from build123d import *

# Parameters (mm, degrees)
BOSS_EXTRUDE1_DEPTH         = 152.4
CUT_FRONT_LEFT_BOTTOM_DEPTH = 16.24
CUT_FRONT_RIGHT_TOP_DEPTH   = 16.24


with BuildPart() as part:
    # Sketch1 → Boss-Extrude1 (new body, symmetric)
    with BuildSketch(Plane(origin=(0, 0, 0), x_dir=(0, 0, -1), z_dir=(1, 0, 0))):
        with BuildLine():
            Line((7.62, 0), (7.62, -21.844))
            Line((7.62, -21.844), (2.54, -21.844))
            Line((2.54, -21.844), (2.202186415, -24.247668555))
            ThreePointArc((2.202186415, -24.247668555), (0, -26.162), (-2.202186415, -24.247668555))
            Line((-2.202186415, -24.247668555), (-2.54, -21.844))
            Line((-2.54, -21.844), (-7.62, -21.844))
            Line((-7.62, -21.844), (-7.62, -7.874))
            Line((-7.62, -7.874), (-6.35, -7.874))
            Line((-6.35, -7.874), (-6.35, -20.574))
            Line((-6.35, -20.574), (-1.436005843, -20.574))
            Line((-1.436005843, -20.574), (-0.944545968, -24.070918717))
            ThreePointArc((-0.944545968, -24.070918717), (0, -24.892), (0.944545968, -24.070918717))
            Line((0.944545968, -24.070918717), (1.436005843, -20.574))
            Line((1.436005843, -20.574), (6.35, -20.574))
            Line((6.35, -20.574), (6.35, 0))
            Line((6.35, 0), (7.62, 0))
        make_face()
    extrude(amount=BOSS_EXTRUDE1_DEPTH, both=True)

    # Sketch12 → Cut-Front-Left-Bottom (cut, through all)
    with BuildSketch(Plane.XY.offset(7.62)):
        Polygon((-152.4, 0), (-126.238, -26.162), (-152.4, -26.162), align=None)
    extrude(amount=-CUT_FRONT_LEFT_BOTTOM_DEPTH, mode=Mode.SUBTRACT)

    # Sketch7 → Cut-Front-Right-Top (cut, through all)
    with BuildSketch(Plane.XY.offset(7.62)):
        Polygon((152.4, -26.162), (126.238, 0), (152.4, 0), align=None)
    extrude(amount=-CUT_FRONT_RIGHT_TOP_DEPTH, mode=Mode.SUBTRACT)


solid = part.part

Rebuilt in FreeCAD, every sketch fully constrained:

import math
import FreeCAD as App
import Part
import Sketcher

V = App.Vector
Q = App.Units.Quantity

doc = App.newDocument("Part")
params = doc.addObject("Spreadsheet::Sheet", "Params")
for row, (alias, value) in enumerate([
    ("sketch1_width", "0.5 in"),
    ("sketch1_height", "0.2 in"),
    ("sketch1_width2", "0.86 in"),
    ("sketch1_width3", "0.81 in"),
    ("sketch1_height2", "0.05 in"),
    ("pad1_length", "12 in"),
    ("sketch2_width", "1.03 in"),
    ("sketch3_width", "1.03 in"),
], start=1):
    params.set(f"A{row}", alias)
    params.set(f"B{row}", "=" + value)
    params.setAlias(f"B{row}", alias)

body = doc.addObject("PartDesign::Body", "Body")

# Sketch on YZ plane
sketch1 = body.newObject("Sketcher::SketchObject", "Sketch")
sketch1.AttachmentSupport = (doc.getObject("YZ_Plane"), [""])
sketch1.MapMode = "FlatFace"
sketch1.addGeometry([
    Part.LineSegment(V(-21.844, -7.62, 0), V(0, -7.62, 0)),  # 0
    Part.LineSegment(V(0, -7.62, 0), V(0, -6.35, 0)),  # 1
    Part.LineSegment(V(0, -6.35, 0), V(-20.574, -6.35, 0)),  # 2
    Part.LineSegment(V(-20.574, -6.35, 0), V(-20.574, -1.436006, 0)),  # 3
    Part.LineSegment(V(-20.574, -1.436006, 0), V(-24.070919, -0.944546, 0)),  # 4
    Part.ArcOfCircle(Part.Circle(V(-23.938171, 0, 0), V(0, 0, 1), 0.953829), math.radians(98), math.radians(262)),  # 5
    Part.LineSegment(V(-24.070919, 0.944546, 0), V(-20.574, 1.436006, 0)),  # 6
    Part.LineSegment(V(-20.574, 1.436006, 0), V(-20.574, 6.35, 0)),  # 7
    Part.LineSegment(V(-20.574, 6.35, 0), V(-7.874, 6.35, 0)),  # 8
    Part.LineSegment(V(-7.874, 6.35, 0), V(-7.874, 7.62, 0)),  # 9
    Part.LineSegment(V(-7.874, 7.62, 0), V(-21.844, 7.62, 0)),  # 10
    Part.LineSegment(V(-21.844, 7.62, 0), V(-21.844, 2.54, 0)),  # 11
    Part.LineSegment(V(-21.844, 2.54, 0), V(-24.247669, 2.202186, 0)),  # 12
    Part.ArcOfCircle(Part.Circle(V(-23.938171, 0, 0), V(0, 0, 1), 2.223829), math.radians(98), math.radians(262)),  # 13
    Part.LineSegment(V(-24.247669, -2.202186, 0), V(-21.844, -2.54, 0)),  # 14
    Part.LineSegment(V(-21.844, -2.54, 0), V(-21.844, -7.62, 0)),  # 15
], False)
sketch1.addConstraint([
    Sketcher.Constraint("Coincident", 0, 2, 1, 1),
    Sketcher.Constraint("Coincident", 1, 2, 2, 1),
    Sketcher.Constraint("Coincident", 2, 2, 3, 1),
    Sketcher.Constraint("Coincident", 3, 2, 4, 1),
    Sketcher.Constraint("Tangent", 4, 2, 5, 2),
    Sketcher.Constraint("Tangent", 5, 1, 6, 1),
    Sketcher.Constraint("Coincident", 6, 2, 7, 1),
    Sketcher.Constraint("Coincident", 7, 2, 8, 1),
    Sketcher.Constraint("Coincident", 8, 2, 9, 1),
    Sketcher.Constraint("Coincident", 9, 2, 10, 1),
    Sketcher.Constraint("Coincident", 10, 2, 11, 1),
    Sketcher.Constraint("Coincident", 11, 2, 12, 1),
    Sketcher.Constraint("Tangent", 12, 2, 13, 1),
    Sketcher.Constraint("Tangent", 13, 2, 14, 1),
    Sketcher.Constraint("Coincident", 14, 2, 15, 1),
    Sketcher.Constraint("Coincident", 15, 2, 0, 1),
    Sketcher.Constraint("Horizontal", 0),
    Sketcher.Constraint("Vertical", 1),
    Sketcher.Constraint("Horizontal", 2),
    Sketcher.Constraint("Vertical", 3),
    Sketcher.Constraint("Vertical", 7),
    Sketcher.Constraint("Horizontal", 8),
    Sketcher.Constraint("Vertical", 9),
    Sketcher.Constraint("Horizontal", 10),
    Sketcher.Constraint("Vertical", 11),
    Sketcher.Constraint("Vertical", 15),
    Sketcher.Constraint("Coincident", 13, 3, 5, 3),
    Sketcher.Constraint("Symmetric", 4, 2, 5, 1, -1),
    Sketcher.Constraint("Symmetric", 2, 2, 7, 2, -1),
    Sketcher.Constraint("Symmetric", 11, 2, 14, 2, -1),
    Sketcher.Constraint("PointOnObject", 0, 2, -2),
    Sketcher.Constraint("Parallel", 6, 12),
    Sketcher.Constraint("Equal", 1, 9),
    Sketcher.Constraint("DistanceX", 8, 1, 8, 2, Q("0.5 in")),
    Sketcher.Constraint("DistanceY", 11, 2, 11, 1, Q("0.2 in")),
    Sketcher.Constraint("Angle", 4, Q("172 deg")),
    Sketcher.Constraint("DistanceX", 0, 1, 0, 2, Q("0.86 in")),
    Sketcher.Constraint("DistanceX", 2, 2, 2, 1, Q("0.81 in")),
    Sketcher.Constraint("DistanceY", 1, 1, 1, 2, Q("0.05 in")),
    Sketcher.Constraint("DistanceY", 0, 2, -1, 1, Q("0.3 in")),
    Sketcher.Constraint("Radius", 5, 0.953829),
    Sketcher.Constraint("Radius", 13, 2.223829),
])
sketch1.setExpression("Constraints[33]", "Params.sketch1_width")
sketch1.setExpression("Constraints[34]", "Params.sketch1_height")
sketch1.setExpression("Constraints[36]", "Params.sketch1_width2")
sketch1.setExpression("Constraints[37]", "Params.sketch1_width3")
sketch1.setExpression("Constraints[38]", "Params.sketch1_height2")
pad1 = body.newObject("PartDesign::Pad", "Pad")
pad1.Profile = sketch1
pad1.setExpression("Length", "Params.pad1_length")
pad1.Midplane = True

# Sketch on XY plane
sketch2 = body.newObject("Sketcher::SketchObject", "Sketch001")
sketch2.AttachmentSupport = (doc.getObject("XY_Plane"), [""])
sketch2.MapMode = "FlatFace"
sketch2.AttachmentOffset = App.Placement(V(0, 0, 0.3 * 25.4), App.Rotation())
sketch2.addGeometry([
    Part.LineSegment(V(-126.238, -26.162, 0), V(-152.4, 0, 0)),
    Part.LineSegment(V(-152.4, 0, 0), V(-152.4, -26.162, 0)),
    Part.LineSegment(V(-152.4, -26.162, 0), V(-126.238, -26.162, 0)),
], False)
sketch2.addConstraint([
    Sketcher.Constraint("Coincident", 0, 2, 1, 1),
    Sketcher.Constraint("Coincident", 1, 2, 2, 1),
    Sketcher.Constraint("Coincident", 2, 2, 0, 1),
    Sketcher.Constraint("Vertical", 1),
    Sketcher.Constraint("Horizontal", 2),
    Sketcher.Constraint("PointOnObject", 0, 2, -1),
    Sketcher.Constraint("Equal", 2, 1),
    Sketcher.Constraint("DistanceX", 0, 2, -1, 1, Q("6 in")),
    Sketcher.Constraint("DistanceX", 2, 1, 2, 2, Q("1.03 in")),
])
sketch2.setExpression("Constraints[8]", "Params.sketch2_width")
pocket1 = body.newObject("PartDesign::Pocket", "Pocket")
pocket1.Profile = sketch2
pocket1.Type = "ThroughAll"

# Sketch on XY plane
sketch3 = body.newObject("Sketcher::SketchObject", "Sketch002")
sketch3.AttachmentSupport = (doc.getObject("XY_Plane"), [""])
sketch3.MapMode = "FlatFace"
sketch3.AttachmentOffset = App.Placement(V(0, 0, 0.3 * 25.4), App.Rotation())
sketch3.addGeometry([
    Part.LineSegment(V(126.238, 0, 0), V(152.4, -26.162, 0)),
    Part.LineSegment(V(152.4, -26.162, 0), V(152.4, 0, 0)),
    Part.LineSegment(V(152.4, 0, 0), V(126.238, 0, 0)),
], False)
sketch3.addConstraint([
    Sketcher.Constraint("Coincident", 0, 2, 1, 1),
    Sketcher.Constraint("Coincident", 1, 2, 2, 1),
    Sketcher.Constraint("Coincident", 2, 2, 0, 1),
    Sketcher.Constraint("Vertical", 1),
    Sketcher.Constraint("Horizontal", 2),
    Sketcher.Constraint("PointOnObject", 1, 2, -1),
    Sketcher.Constraint("Equal", 2, 1),
    Sketcher.Constraint("DistanceX", -1, 1, 0, 2, Q("6 in")),
    Sketcher.Constraint("DistanceX", 2, 2, 2, 1, Q("1.03 in")),
])
sketch3.setExpression("Constraints[8]", "Params.sketch3_width")
pocket2 = body.newObject("PartDesign::Pocket", "Pocket001")
pocket2.Profile = sketch3
pocket2.Type = "ThroughAll"

doc.recompute()
